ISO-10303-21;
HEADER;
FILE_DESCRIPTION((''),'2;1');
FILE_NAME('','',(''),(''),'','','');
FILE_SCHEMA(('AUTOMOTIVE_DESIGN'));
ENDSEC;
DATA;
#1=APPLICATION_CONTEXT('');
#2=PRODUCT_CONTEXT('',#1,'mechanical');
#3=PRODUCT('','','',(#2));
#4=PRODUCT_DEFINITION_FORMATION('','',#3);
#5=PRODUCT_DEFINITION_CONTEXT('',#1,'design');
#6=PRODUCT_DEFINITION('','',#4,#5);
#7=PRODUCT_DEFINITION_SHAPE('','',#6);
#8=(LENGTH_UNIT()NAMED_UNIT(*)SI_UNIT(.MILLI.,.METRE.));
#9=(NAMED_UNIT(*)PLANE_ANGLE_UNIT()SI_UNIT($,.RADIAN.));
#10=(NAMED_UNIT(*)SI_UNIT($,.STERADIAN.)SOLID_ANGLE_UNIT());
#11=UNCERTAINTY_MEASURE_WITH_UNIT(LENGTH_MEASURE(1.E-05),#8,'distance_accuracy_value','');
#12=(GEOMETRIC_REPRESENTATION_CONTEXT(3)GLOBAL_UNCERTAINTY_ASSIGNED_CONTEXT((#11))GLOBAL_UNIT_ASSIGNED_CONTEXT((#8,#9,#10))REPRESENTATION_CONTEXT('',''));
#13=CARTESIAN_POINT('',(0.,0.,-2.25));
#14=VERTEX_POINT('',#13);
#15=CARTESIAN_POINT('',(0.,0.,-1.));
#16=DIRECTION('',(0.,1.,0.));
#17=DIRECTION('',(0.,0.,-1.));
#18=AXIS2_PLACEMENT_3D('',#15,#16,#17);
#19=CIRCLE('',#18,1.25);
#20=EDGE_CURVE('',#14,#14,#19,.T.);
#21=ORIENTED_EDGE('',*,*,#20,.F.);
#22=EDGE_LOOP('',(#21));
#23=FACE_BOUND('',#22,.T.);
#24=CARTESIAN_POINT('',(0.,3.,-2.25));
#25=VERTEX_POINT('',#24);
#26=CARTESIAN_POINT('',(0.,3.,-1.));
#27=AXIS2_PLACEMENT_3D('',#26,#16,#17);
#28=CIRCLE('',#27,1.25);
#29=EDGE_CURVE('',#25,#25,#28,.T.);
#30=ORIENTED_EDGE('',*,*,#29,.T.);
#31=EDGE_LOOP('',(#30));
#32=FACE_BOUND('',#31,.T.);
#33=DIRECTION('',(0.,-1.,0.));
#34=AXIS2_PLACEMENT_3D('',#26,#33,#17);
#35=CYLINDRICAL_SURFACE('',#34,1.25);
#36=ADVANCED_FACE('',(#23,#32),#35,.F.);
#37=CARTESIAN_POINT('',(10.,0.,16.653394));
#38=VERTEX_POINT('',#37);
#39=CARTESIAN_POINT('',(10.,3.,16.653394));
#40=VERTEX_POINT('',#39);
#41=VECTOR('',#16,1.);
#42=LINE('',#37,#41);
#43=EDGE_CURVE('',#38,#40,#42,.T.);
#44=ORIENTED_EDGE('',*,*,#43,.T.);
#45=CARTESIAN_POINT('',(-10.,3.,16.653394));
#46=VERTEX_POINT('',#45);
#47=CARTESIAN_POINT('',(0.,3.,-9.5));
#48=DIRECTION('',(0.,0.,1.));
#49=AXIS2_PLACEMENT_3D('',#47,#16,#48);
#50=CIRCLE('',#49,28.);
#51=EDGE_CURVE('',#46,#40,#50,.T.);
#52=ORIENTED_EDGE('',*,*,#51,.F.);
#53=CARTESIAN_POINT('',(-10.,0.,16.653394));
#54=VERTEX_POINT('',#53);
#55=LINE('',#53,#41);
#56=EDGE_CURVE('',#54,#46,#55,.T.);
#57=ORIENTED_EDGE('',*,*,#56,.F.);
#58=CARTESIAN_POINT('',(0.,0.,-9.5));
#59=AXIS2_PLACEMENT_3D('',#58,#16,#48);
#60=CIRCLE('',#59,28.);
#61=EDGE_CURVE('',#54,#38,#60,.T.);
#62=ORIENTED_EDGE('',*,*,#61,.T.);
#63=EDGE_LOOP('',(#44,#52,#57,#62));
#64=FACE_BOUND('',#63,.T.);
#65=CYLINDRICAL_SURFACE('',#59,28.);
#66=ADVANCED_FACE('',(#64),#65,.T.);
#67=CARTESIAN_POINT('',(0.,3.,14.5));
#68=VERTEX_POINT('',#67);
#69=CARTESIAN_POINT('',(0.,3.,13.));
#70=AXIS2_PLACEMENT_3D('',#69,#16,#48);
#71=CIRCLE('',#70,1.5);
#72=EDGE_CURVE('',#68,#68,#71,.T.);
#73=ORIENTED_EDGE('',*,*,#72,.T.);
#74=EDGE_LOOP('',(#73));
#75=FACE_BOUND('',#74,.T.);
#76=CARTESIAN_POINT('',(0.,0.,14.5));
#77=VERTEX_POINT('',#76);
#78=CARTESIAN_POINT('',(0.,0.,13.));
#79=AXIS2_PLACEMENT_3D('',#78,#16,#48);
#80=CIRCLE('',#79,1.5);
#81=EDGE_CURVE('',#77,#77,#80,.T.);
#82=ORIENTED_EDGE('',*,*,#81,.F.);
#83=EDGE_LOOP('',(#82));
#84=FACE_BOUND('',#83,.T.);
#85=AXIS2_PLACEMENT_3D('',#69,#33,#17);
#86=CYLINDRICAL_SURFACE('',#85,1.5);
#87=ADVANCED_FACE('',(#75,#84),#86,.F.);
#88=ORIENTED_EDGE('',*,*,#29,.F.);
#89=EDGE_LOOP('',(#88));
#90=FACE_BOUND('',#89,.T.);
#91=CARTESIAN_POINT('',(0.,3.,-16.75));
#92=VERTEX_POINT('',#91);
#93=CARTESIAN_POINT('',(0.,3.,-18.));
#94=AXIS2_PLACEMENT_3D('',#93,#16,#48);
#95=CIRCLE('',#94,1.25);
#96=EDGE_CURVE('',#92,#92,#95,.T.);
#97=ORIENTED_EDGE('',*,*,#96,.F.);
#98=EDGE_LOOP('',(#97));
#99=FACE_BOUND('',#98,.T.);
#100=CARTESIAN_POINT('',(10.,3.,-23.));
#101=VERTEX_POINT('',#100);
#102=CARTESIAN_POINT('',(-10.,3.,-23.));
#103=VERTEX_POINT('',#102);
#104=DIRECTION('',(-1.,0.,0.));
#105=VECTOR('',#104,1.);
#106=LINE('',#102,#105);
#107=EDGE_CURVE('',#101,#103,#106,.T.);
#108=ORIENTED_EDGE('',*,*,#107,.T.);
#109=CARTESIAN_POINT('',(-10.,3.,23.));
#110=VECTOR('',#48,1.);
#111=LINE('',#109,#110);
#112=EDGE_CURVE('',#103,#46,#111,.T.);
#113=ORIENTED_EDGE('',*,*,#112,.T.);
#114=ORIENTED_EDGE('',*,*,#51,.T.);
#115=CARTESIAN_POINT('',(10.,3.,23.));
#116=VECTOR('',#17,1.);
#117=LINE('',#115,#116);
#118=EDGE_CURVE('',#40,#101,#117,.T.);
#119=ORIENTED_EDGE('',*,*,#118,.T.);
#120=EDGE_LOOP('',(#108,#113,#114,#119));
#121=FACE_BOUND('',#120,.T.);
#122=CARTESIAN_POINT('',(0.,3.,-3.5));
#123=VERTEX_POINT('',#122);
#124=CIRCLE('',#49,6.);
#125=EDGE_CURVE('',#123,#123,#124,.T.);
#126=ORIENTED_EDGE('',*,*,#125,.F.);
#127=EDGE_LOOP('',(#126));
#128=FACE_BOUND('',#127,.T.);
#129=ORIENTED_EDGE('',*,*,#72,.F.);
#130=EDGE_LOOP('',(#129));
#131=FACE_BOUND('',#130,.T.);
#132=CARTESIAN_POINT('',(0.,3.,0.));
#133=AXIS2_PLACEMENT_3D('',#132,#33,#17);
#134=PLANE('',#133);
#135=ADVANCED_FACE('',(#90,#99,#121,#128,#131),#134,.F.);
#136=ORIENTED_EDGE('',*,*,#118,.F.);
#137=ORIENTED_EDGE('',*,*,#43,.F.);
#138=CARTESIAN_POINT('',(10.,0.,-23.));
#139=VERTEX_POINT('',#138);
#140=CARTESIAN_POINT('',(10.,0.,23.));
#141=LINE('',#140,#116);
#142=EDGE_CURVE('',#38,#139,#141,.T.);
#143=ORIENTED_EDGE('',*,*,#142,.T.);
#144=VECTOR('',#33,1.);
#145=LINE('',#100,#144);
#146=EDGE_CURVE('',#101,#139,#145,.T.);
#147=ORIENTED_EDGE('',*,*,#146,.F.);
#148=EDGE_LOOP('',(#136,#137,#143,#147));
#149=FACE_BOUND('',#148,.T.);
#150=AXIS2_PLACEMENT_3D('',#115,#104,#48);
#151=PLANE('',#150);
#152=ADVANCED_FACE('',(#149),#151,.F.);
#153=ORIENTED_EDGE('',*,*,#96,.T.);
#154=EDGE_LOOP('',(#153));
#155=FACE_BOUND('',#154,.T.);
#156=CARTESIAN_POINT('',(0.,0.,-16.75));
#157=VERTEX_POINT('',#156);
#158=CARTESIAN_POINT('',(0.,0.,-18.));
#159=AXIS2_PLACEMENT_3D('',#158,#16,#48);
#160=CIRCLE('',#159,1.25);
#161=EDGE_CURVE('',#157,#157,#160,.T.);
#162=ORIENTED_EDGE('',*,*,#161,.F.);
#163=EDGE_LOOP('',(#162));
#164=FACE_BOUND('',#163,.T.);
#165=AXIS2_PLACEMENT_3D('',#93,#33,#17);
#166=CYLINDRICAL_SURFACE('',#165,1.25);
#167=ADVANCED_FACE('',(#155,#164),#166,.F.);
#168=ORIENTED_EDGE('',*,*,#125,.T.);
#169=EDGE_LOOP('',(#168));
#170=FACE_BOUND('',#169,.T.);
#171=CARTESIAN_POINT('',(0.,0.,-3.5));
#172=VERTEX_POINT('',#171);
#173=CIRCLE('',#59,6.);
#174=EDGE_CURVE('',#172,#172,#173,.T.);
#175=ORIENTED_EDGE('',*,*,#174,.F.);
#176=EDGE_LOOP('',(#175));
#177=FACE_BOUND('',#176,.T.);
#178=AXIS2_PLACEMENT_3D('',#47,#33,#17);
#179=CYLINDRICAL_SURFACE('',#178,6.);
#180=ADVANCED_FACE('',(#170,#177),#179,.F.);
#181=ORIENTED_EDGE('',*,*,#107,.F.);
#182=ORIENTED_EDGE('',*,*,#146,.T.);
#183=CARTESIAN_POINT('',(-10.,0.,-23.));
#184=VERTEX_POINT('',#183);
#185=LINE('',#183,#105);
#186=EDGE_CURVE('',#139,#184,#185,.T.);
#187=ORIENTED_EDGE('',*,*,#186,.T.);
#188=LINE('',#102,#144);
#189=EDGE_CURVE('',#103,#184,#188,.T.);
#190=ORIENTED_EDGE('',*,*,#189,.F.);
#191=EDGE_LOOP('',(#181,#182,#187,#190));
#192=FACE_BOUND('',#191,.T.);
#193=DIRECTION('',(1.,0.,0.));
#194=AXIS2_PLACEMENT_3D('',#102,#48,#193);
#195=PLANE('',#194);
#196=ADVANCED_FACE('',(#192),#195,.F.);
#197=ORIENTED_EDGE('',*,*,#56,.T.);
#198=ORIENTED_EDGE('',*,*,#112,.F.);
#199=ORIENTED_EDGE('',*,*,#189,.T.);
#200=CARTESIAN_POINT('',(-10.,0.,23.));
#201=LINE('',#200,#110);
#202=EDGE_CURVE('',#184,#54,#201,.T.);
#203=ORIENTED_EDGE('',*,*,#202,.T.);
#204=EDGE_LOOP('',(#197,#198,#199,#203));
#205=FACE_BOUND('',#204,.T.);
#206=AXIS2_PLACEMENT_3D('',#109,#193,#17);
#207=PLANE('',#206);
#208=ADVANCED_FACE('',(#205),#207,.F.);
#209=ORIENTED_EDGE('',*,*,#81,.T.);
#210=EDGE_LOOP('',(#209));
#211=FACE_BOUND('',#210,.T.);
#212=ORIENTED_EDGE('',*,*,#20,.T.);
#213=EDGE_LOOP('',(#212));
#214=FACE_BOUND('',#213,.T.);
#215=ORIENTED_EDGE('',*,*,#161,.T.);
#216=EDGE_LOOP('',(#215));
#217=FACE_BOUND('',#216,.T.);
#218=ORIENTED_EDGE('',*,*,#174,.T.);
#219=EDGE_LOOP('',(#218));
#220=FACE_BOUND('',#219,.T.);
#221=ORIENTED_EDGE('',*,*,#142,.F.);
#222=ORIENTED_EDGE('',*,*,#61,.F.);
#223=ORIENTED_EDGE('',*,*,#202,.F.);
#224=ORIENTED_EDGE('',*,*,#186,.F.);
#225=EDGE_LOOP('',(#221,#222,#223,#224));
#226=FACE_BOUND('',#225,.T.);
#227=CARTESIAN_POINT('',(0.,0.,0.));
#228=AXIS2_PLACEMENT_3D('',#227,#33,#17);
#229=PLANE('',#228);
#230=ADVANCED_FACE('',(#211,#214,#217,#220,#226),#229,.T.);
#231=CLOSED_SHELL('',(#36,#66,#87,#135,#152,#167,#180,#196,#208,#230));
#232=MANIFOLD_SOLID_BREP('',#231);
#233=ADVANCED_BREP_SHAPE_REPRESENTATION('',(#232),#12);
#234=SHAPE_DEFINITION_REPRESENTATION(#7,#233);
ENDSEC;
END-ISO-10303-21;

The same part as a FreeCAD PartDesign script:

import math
import FreeCAD as App
import Part
import Sketcher
from FreeCAD import Vector
Q = App.Units.Quantity


def add_polygon(sketch, points):
    """Adds a closed chain of lines whose ends are joined by coincident constraints."""
    first, n = sketch.GeometryCount, len(points)
    for a, b in zip(points, points[1:] + points[:1]):
        sketch.addGeometry(Part.LineSegment(App.Vector(*a, 0), App.Vector(*b, 0)), False)
    for i in range(n):
        sketch.addConstraint(Sketcher.Constraint("Coincident", first + i, 2, first + (i + 1) % n, 1))

doc = App.newDocument("Part")
body = doc.addObject("PartDesign::Body", "Body")

# Sketch on XZ plane
sketch1 = doc.addObject("Sketcher::SketchObject", "Sketch")
body.addObject(sketch1)
sketch1.AttachmentSupport = (doc.XZ_Plane, [""])
sketch1.MapMode = "FlatFace"
add_polygon(sketch1, [(-10, -23), (-10, 23), (10, 23), (10, -23)])  # lines 0-3
sketch1.addGeometry(Part.Circle(Vector(0, 13, 0), Vector(0, 0, 1), 1.5), False)  # 4
sketch1.addGeometry(Part.Circle(Vector(0, -1, 0), Vector(0, 0, 1), 1.2), False)  # 5
sketch1.addGeometry(Part.Circle(Vector(0, -9.5, 0), Vector(0, 0, 1), 6), False)  # 6
sketch1.addGeometry(Part.Circle(Vector(0, -18, 0), Vector(0, 0, 1), 1.2), False)  # 7
sketch1.addConstraint([
    Sketcher.Constraint("Vertical", 0),
    Sketcher.Constraint("Horizontal", 1),
    Sketcher.Constraint("Vertical", 2),
    Sketcher.Constraint("Horizontal", 3),
    Sketcher.Constraint("Equal", 5, 7),
    Sketcher.Constraint("Symmetric", 0, 2, 2, 2, -1, 1),
    Sketcher.Constraint("PointOnObject", 4, 3, -2),
    Sketcher.Constraint("PointOnObject", 5, 3, -2),
    Sketcher.Constraint("PointOnObject", 6, 3, -2),
    Sketcher.Constraint("PointOnObject", 7, 3, -2),
    Sketcher.Constraint("Diameter", 4, Q("3 mm")),
    Sketcher.Constraint("Diameter", 6, Q("12 mm")),
    Sketcher.Constraint("Diameter", 5, Q("2.5 mm")),
    Sketcher.Constraint("DistanceX", 1, 1, 1, 2, Q("20 mm")),
    Sketcher.Constraint("DistanceY", 0, 1, 0, 2, Q("46 mm")),
    Sketcher.Constraint("DistanceY", -1, 1, 4, 3, Q("13 mm")),
    Sketcher.Constraint("DistanceY", 5, 3, -1, 1, Q("1 mm")),
    Sketcher.Constraint("DistanceY", 7, 3, -1, 1, Q("18 mm")),
    Sketcher.Constraint("DistanceY", 6, 3, -1, 1, Q("9.5 mm")),
])
pad1 = doc.addObject("PartDesign::Pad", "Pad")
body.addObject(pad1)
pad1.Profile = sketch1
pad1.Length = 3
pad1.Reversed = True

# Sketch on XZ plane
sketch2 = doc.addObject("Sketcher::SketchObject", "Sketch001")
body.addObject(sketch2)
sketch2.AttachmentSupport = (doc.XZ_Plane, [""])
sketch2.MapMode = "FlatFace"
sketch2.AttachmentOffset = App.Placement(Vector(0, 0, -3), App.Rotation())
sketch2.addGeometry([
    Part.LineSegment(Vector(-10, 37, 0), Vector(10, 37, 0)),
    Part.LineSegment(Vector(10, 37, 0), Vector(10, 17, 0)),
    Part.ArcOfCircle(Part.Circle(Vector(0, -9, 0), Vector(0, 0, 1), 28), math.radians(69), math.radians(111)),
    Part.LineSegment(Vector(-10, 17, 0), Vector(-10, 37, 0)),
], False)
sketch2.addConstraint([
    Sketcher.Constraint("Coincident", 0, 2, 1, 1),
    Sketcher.Constraint("Coincident", 1, 2, 2, 1),
    Sketcher.Constraint("Coincident", 2, 2, 3, 1),
    Sketcher.Constraint("Coincident", 3, 2, 0, 1),
    Sketcher.Constraint("Horizontal", 0),
    Sketcher.Constraint("Vertical", 1),
    Sketcher.Constraint("Vertical", 3),
    Sketcher.Constraint("Symmetric", 1, 2, 2, 2, -2),
    Sketcher.Constraint("Equal", 0, 1),
    Sketcher.Constraint("Radius", 2, Q("28 mm")),
    Sketcher.Constraint("DistanceX", 0, 1, 0, 2, Q("20 mm")),
    Sketcher.Constraint("DistanceY", 2, 3, -1, 1, Q("9.5 mm")),
])
pocket1 = doc.addObject("PartDesign::Pocket", "Pocket")
body.addObject(pocket1)
pocket1.Profile = sketch2
pocket1.Type = "ThroughAll"
pocket1.Midplane = True

doc.recompute()
